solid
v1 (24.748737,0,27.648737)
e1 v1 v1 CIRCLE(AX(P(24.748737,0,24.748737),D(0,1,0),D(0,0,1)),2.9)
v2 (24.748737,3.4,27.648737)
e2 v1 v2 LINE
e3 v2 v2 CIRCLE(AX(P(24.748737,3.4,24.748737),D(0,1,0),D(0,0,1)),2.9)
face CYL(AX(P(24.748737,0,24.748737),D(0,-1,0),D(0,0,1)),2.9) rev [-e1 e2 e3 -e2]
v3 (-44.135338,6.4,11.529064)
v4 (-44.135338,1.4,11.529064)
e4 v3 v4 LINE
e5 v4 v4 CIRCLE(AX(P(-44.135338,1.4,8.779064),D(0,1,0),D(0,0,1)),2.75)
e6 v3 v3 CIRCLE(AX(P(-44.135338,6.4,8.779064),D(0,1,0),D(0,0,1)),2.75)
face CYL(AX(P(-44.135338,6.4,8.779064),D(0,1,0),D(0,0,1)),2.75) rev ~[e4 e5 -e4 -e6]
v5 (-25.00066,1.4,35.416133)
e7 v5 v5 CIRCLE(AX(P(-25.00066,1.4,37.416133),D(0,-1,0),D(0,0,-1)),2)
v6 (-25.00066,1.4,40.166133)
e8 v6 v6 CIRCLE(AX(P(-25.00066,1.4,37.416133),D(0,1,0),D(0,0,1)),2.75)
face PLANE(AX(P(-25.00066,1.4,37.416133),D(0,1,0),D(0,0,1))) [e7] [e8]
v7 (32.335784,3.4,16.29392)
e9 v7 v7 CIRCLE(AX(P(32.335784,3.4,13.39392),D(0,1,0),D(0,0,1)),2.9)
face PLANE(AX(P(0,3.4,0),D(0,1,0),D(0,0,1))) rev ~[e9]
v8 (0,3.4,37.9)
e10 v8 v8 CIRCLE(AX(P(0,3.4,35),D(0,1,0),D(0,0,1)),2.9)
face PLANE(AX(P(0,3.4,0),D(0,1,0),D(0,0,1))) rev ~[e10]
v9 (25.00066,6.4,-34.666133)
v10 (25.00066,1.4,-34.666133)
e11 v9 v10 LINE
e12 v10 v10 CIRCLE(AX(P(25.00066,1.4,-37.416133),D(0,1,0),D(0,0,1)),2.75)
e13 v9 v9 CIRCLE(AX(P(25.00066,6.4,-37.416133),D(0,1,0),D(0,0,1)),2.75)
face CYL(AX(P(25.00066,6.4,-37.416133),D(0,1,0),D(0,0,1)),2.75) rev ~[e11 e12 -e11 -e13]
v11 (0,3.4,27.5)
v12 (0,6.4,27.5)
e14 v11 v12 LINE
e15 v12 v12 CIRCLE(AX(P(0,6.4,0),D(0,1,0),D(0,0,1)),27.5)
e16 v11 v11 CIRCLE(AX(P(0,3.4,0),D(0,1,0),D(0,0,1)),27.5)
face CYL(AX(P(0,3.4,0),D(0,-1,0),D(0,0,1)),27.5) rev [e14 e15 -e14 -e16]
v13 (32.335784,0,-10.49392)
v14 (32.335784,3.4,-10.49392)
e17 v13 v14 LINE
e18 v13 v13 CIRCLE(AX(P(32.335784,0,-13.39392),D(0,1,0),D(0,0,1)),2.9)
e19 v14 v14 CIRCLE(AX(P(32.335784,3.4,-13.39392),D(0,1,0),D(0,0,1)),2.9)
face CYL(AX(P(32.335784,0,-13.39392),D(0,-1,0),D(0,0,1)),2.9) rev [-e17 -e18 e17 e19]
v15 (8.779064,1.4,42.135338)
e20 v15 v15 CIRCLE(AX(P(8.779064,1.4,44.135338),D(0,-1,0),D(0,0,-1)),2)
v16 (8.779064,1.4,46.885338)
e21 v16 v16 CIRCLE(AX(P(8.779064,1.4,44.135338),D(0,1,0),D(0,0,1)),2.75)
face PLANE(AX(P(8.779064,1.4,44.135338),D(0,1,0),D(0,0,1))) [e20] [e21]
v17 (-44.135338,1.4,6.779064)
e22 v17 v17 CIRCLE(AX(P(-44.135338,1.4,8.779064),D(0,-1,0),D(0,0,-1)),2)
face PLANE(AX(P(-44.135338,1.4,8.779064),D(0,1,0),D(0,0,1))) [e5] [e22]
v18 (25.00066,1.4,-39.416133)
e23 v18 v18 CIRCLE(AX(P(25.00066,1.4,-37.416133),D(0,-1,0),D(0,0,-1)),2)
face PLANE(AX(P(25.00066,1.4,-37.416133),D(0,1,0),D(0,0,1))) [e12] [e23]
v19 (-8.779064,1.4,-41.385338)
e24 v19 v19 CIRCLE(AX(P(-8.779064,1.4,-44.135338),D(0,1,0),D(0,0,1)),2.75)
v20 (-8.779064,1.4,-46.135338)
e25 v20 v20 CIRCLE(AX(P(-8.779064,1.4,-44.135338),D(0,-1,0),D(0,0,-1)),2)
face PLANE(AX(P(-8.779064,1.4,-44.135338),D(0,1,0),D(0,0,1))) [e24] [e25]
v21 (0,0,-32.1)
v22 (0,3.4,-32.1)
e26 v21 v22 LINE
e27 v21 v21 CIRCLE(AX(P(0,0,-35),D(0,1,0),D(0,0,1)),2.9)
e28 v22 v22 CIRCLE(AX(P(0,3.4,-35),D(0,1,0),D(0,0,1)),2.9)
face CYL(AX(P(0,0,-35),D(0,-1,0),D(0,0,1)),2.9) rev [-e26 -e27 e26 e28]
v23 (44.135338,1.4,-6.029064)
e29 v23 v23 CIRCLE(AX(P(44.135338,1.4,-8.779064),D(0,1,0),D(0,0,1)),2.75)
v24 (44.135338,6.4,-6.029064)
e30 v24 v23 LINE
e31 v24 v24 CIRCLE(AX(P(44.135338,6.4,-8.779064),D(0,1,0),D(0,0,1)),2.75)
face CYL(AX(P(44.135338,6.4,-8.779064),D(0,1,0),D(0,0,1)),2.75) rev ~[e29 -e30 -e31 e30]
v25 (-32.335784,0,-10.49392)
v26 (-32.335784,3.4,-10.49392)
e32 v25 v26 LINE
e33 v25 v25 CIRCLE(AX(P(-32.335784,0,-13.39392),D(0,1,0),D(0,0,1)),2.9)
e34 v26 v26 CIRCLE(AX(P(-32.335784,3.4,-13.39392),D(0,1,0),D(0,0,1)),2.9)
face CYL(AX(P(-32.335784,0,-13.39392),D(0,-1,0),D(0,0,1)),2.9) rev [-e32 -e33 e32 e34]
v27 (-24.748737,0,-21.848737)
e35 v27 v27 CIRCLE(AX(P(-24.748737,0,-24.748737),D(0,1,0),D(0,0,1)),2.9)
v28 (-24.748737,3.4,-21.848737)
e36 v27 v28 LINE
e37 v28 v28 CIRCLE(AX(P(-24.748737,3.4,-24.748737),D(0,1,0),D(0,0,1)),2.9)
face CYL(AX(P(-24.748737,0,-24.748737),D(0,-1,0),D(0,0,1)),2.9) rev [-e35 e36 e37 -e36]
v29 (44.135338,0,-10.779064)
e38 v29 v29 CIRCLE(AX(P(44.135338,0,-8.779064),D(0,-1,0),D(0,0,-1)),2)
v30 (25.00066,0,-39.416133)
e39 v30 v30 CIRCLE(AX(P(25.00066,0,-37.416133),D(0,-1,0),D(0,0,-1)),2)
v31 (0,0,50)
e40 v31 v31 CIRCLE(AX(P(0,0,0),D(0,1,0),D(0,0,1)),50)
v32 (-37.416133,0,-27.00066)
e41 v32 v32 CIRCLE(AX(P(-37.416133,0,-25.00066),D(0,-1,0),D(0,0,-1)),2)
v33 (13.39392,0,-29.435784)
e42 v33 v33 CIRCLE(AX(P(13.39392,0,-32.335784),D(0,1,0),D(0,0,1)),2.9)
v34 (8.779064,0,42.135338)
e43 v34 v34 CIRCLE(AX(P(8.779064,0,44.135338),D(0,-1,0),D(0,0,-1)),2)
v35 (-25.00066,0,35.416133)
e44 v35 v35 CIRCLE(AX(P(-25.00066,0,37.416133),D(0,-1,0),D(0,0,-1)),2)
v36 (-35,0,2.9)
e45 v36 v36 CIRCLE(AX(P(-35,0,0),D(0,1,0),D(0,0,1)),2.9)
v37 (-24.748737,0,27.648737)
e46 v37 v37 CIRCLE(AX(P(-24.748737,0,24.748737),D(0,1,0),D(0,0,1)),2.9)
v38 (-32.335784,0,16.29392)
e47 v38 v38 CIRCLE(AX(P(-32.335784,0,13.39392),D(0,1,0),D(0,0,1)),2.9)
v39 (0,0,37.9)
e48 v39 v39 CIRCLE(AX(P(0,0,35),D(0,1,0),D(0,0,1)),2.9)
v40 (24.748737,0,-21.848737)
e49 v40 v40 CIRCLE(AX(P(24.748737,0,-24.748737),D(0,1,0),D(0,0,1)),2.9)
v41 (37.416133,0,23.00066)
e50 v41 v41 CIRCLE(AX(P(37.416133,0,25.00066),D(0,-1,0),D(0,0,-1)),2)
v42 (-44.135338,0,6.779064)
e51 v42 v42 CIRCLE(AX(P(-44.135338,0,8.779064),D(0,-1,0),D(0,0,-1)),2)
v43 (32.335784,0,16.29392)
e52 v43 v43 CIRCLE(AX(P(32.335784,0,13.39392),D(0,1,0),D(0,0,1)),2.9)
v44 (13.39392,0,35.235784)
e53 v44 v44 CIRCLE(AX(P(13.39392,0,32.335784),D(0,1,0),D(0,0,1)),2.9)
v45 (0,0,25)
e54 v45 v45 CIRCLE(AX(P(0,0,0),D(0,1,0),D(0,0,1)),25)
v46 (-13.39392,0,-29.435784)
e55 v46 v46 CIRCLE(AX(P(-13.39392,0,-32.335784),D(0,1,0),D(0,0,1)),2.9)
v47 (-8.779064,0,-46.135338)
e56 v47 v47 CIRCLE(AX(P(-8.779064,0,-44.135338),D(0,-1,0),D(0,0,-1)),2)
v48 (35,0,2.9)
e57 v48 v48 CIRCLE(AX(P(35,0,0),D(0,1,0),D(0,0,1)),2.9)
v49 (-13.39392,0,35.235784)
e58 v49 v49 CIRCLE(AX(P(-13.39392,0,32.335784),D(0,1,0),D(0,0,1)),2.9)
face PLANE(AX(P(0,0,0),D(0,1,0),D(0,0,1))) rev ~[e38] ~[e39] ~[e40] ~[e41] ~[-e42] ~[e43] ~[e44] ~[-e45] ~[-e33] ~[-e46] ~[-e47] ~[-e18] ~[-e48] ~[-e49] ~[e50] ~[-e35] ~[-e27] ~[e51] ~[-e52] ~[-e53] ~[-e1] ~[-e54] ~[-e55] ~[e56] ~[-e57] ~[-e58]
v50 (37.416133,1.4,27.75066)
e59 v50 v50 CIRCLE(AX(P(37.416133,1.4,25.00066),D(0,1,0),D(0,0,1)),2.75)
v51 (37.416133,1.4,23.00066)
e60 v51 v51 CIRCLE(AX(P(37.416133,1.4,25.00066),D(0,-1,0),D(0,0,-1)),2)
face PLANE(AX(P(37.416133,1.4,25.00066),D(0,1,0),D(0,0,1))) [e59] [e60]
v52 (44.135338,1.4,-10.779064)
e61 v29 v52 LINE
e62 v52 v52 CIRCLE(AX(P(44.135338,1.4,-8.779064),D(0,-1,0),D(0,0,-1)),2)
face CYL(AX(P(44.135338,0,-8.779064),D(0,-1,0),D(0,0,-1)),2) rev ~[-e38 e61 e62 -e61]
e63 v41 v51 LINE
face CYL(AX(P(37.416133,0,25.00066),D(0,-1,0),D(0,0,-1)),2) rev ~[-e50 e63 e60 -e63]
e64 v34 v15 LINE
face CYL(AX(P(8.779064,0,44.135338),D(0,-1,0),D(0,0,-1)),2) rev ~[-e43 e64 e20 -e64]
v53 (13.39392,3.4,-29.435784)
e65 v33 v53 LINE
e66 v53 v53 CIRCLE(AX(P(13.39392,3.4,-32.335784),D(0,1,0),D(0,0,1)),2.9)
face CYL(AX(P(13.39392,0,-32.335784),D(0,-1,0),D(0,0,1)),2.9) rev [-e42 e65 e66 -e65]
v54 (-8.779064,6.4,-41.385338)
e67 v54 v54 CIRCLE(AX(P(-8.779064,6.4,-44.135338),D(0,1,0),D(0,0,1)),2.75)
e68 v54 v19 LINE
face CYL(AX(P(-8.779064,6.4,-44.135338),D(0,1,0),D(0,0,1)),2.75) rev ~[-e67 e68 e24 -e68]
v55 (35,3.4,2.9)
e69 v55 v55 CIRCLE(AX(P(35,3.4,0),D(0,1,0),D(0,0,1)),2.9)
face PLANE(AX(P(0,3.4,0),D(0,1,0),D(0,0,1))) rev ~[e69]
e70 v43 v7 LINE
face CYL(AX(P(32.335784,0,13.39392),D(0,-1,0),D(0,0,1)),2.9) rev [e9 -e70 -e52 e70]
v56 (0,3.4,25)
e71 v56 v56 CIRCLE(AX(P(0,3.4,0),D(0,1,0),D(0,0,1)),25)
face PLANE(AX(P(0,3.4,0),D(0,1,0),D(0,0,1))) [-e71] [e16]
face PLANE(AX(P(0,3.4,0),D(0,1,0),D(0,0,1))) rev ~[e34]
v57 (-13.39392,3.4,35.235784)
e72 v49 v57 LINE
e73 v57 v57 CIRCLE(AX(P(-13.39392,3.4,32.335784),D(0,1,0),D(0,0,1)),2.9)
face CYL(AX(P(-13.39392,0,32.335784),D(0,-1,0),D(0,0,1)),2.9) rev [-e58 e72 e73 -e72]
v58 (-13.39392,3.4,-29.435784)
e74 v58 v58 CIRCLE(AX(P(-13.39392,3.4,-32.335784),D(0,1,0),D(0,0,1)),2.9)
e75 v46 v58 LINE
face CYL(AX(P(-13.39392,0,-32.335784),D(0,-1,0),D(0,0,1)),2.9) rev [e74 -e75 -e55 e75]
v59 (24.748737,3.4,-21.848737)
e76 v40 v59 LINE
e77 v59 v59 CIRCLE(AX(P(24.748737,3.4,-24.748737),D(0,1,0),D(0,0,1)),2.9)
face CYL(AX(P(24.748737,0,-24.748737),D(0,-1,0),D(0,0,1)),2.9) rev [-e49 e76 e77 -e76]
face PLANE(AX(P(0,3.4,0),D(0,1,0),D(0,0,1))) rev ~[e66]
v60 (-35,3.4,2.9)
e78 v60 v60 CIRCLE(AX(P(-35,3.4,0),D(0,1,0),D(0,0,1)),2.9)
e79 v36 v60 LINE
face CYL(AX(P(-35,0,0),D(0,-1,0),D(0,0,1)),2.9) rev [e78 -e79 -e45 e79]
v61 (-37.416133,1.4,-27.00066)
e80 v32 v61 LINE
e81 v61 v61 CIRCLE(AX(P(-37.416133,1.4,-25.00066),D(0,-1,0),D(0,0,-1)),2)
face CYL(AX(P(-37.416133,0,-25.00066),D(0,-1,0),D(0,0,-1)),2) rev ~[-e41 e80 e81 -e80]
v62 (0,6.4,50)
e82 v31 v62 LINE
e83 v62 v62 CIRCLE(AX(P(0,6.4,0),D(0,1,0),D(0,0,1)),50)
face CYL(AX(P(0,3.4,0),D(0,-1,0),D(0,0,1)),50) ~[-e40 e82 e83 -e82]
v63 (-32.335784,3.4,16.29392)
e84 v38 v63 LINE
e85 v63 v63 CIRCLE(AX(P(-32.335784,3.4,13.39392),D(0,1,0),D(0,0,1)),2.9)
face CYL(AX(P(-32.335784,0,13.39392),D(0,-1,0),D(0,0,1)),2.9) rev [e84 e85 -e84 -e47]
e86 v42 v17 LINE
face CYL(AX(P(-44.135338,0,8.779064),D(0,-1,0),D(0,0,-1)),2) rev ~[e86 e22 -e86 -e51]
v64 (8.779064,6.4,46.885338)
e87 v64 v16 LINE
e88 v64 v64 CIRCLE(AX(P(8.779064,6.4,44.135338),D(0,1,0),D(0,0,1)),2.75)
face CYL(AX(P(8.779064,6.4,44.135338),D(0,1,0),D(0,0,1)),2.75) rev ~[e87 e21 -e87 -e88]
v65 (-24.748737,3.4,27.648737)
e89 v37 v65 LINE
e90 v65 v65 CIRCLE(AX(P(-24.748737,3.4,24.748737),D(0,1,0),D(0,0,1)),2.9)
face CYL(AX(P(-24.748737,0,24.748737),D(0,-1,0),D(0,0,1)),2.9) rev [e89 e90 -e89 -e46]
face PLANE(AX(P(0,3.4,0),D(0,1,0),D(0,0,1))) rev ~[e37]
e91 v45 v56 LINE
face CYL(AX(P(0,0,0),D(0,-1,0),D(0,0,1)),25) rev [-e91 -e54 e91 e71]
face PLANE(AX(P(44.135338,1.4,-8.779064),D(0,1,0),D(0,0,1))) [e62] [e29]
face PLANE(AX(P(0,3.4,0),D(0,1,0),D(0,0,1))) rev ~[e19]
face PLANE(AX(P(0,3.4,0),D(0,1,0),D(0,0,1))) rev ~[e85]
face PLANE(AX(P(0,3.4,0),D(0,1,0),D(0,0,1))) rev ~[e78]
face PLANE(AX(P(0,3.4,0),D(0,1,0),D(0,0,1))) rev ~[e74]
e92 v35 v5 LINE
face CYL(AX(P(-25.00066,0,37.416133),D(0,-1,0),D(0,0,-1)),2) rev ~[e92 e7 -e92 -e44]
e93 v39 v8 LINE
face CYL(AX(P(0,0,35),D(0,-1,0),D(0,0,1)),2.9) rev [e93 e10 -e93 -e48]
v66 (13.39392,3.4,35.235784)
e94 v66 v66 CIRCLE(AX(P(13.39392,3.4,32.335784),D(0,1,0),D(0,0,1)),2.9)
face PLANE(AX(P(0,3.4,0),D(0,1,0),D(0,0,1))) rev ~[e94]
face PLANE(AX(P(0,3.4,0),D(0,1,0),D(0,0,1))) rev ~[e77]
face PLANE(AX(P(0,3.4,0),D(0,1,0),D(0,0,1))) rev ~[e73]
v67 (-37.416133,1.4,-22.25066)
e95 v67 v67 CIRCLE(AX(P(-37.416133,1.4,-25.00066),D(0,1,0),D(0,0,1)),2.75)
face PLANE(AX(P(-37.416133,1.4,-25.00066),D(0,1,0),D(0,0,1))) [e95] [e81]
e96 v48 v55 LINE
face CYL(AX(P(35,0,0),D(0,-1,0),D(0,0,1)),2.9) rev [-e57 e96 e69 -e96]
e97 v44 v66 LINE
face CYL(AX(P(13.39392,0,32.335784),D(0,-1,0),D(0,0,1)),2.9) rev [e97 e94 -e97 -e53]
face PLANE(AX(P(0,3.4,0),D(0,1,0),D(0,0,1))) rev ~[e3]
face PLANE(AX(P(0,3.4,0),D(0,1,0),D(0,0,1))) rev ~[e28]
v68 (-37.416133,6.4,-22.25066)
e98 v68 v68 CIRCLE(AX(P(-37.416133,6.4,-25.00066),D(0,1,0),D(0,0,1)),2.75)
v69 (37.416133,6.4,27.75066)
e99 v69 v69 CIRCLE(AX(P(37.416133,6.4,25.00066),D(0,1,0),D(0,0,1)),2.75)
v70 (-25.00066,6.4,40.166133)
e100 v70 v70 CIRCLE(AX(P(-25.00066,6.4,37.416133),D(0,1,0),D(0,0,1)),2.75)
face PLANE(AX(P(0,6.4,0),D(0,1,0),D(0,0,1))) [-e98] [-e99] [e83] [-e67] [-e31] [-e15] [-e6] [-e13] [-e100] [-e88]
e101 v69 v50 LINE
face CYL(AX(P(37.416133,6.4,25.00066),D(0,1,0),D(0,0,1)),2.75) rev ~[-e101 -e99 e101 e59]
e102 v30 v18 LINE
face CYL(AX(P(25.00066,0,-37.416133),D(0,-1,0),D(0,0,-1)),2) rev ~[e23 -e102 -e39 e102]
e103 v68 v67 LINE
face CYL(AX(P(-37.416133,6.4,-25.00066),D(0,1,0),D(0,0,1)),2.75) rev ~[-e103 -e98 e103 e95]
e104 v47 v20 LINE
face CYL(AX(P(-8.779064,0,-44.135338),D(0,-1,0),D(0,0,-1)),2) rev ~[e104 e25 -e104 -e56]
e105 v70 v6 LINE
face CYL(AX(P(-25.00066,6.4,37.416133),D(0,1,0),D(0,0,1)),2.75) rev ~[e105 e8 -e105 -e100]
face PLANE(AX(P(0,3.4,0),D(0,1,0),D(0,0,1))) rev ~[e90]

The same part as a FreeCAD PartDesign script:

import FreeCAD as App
import Part
import Sketcher

V = App.Vector
Q = App.Units.Quantity

doc = App.newDocument("Part")
params = doc.addObject("Spreadsheet::Sheet", "Params")
for row, (alias, value) in enumerate([
    ("sketch1_diameter", "100 mm"),
    ("sketch1_diameter2", "50 mm"),
    ("sketch1_diameter3", "5.8 mm"),
    ("pad1_length", "3.4 mm"),
    ("sketch2_diameter", "100 mm"),
    ("sketch2_diameter2", "55 mm"),
    ("pad2_length", "3 mm"),
    ("sketch3_diameter", "4 mm"),
    ("pocket1_length", "6.4 mm"),
    ("sketch4_diameter", "5.5 mm"),
    ("pocket2_length", "5 mm"),
], start=1):
    params.set(f"A{row}", alias)
    params.set(f"B{row}", "=" + value)
    params.setAlias(f"B{row}", alias)

body = doc.addObject("PartDesign::Body", "Body")

# Sketch on XZ plane
sketch1 = body.newObject("Sketcher::SketchObject", "Sketch")
sketch1.AttachmentSupport = (doc.getObject("XZ_Plane"), [""])
sketch1.MapMode = "FlatFace"
sketch1.addGeometry([
    Part.Circle(V(0, 0, 0), V(0, 0, 1), 50),  # 0
    Part.Circle(V(-24.7, -24.7, 0), V(0, 0, 1), 2.9),  # 1
    Part.Circle(V(-32.3, -13.4, 0), V(0, 0, 1), 2.9),  # 2
    Part.Circle(V(-13.4, -32.3, 0), V(0, 0, 1), 2.9),  # 3
    Part.Circle(V(0, -35, 0), V(0, 0, 1), 2.9),  # 4
    Part.Circle(V(-35, 0, 0), V(0, 0, 1), 2.9),  # 5
    Part.Circle(V(-32.3, 13.4, 0), V(0, 0, 1), 2.9),  # 6
    Part.Circle(V(-24.7, 24.7, 0), V(0, 0, 1), 2.9),  # 7
    Part.Circle(V(0, 0, 0), V(0, 0, 1), 25),  # 8
    Part.Circle(V(-13.4, 32.3, 0), V(0, 0, 1), 2.9),  # 9
    Part.Circle(V(13.4, -32.3, 0), V(0, 0, 1), 2.9),  # 10
    Part.Circle(V(24.7, -24.7, 0), V(0, 0, 1), 2.9),  # 11
    Part.Circle(V(32.3, -13.4, 0), V(0, 0, 1), 2.9),  # 12
    Part.Circle(V(35, 0, 0), V(0, 0, 1), 2.9),  # 13
    Part.Circle(V(0, 35, 0), V(0, 0, 1), 2.9),  # 14
    Part.Circle(V(13.4, 32.3, 0), V(0, 0, 1), 2.9),  # 15
    Part.Circle(V(32.3, 13.4, 0), V(0, 0, 1), 2.9),  # 16
    Part.Circle(V(24.7, 24.7, 0), V(0, 0, 1), 2.9),  # 17
], False)
sketch1.addConstraint([
    Sketcher.Constraint("Coincident", 0, 3, -1, 1),
    Sketcher.Constraint("Coincident", 8, 3, -1, 1),
    Sketcher.Constraint("Equal", 1, 2),
    Sketcher.Constraint("Equal", 2, 3),
    Sketcher.Constraint("Equal", 3, 4),
    Sketcher.Constraint("Equal", 4, 5),
    Sketcher.Constraint("Equal", 5, 6),
    Sketcher.Constraint("Equal", 6, 7),
    Sketcher.Constraint("Equal", 7, 9),
    Sketcher.Constraint("Equal", 9, 10),
    Sketcher.Constraint("Equal", 10, 11),
    Sketcher.Constraint("Equal", 11, 12),
    Sketcher.Constraint("Equal", 12, 13),
    Sketcher.Constraint("Equal", 13, 14),
    Sketcher.Constraint("Equal", 14, 15),
    Sketcher.Constraint("Equal", 15, 16),
    Sketcher.Constraint("Equal", 16, 17),
    Sketcher.Constraint("Symmetric", 9, 3, 10, 3, -1, 1),
    Sketcher.Constraint("Symmetric", 7, 3, 11, 3, -1, 1),
    Sketcher.Constraint("Symmetric", 6, 3, 12, 3, -1, 1),
    Sketcher.Constraint("Symmetric", 5, 3, 13, 3, -1, 1),
    Sketcher.Constraint("Symmetric", 4, 3, 14, 3, -1, 1),
    Sketcher.Constraint("Symmetric", 3, 3, 15, 3, -1, 1),
    Sketcher.Constraint("Symmetric", 2, 3, 16, 3, -1, 1),
    Sketcher.Constraint("Symmetric", 1, 3, 17, 3, -1, 1),
    Sketcher.Constraint("Symmetric", 3, 3, 10, 3, -2),
    Sketcher.Constraint("Symmetric", 1, 3, 11, 3, -2),
    Sketcher.Constraint("Symmetric", 2, 3, 12, 3, -2),
    Sketcher.Constraint("PointOnObject", 4, 3, -2),
    Sketcher.Constraint("PointOnObject", 5, 3, -1),
    Sketcher.Constraint("Diameter", 0, Q("100 mm")),
    Sketcher.Constraint("Diameter", 8, Q("50 mm")),
    Sketcher.Constraint("Diameter", 1, Q("5.8 mm")),
    Sketcher.Constraint("DistanceY", 4, 3, -1, 1, Q("35 mm")),
    Sketcher.Constraint("DistanceX", 5, 3, -1, 1, Q("35 mm")),
    Sketcher.Constraint("DistanceY", 2, 3, -1, 1, Q("13.39392 mm")),
    Sketcher.Constraint("DistanceX", 3, 3, -1, 1, Q("13.39392 mm")),
    Sketcher.Constraint("DistanceX", 1, 3, -1, 1, Q("24.748737 mm")),
    Sketcher.Constraint("DistanceY", 1, 3, -1, 1, Q("24.748737 mm")),
    Sketcher.Constraint("DistanceX", 2, 3, -1, 1, Q("32.335784 mm")),
    Sketcher.Constraint("DistanceY", 3, 3, -1, 1, Q("32.335784 mm")),
])
sketch1.setExpression("Constraints[30]", "Params.sketch1_diameter")
sketch1.setExpression("Constraints[31]", "Params.sketch1_diameter2")
sketch1.setExpression("Constraints[32]", "Params.sketch1_diameter3")
pad1 = body.newObject("PartDesign::Pad", "Pad")
pad1.Profile = sketch1
pad1.setExpression("Length", "Params.pad1_length")
pad1.Reversed = True

# Sketch on XZ plane
sketch2 = body.newObject("Sketcher::SketchObject", "Sketch001")
sketch2.AttachmentSupport = (doc.getObject("XZ_Plane"), [""])
sketch2.MapMode = "FlatFace"
sketch2.AttachmentOffset = App.Placement(V(0, 0, -3.4), App.Rotation())
sketch2.addGeometry([
    Part.Circle(V(0, 0, 0), V(0, 0, 1), 50),
    Part.Circle(V(0, 0, 0), V(0, 0, 1), 28),
], False)
sketch2.addConstraint([
    Sketcher.Constraint("Coincident", 0, 3, -1, 1),
    Sketcher.Constraint("Coincident", 1, 3, -1, 1),
    Sketcher.Constraint("Diameter", 0, Q("100 mm")),
    Sketcher.Constraint("Diameter", 1, Q("55 mm")),
])
sketch2.setExpression("Constraints[2]", "Params.sketch2_diameter")
sketch2.setExpression("Constraints[3]", "Params.sketch2_diameter2")
pad2 = body.newObject("PartDesign::Pad", "Pad001")
pad2.Profile = sketch2
pad2.setExpression("Length", "Params.pad2_length")
pad2.Reversed = True

# Sketch on XZ plane
sketch3 = body.newObject("Sketcher::SketchObject", "Sketch002")
sketch3.AttachmentSupport = (doc.getObject("XZ_Plane"), [""])
sketch3.MapMode = "FlatFace"
sketch3.addGeometry([
    Part.Circle(V(-37.4, -25, 0), V(0, 0, 1), 2),  # 0
    Part.Circle(V(37.4, 25, 0), V(0, 0, 1), 2),  # 1
    Part.Circle(V(44.1, -8.8, 0), V(0, 0, 1), 2),  # 2
    Part.Circle(V(25, -37.4, 0), V(0, 0, 1), 2),  # 3
    Part.Circle(V(-8.8, -44.1, 0), V(0, 0, 1), 2),  # 4
    Part.Circle(V(-44.1, 8.8, 0), V(0, 0, 1), 2),  # 5
    Part.Circle(V(-25, 37.4, 0), V(0, 0, 1), 2),  # 6
    Part.Circle(V(8.8, 44.1, 0), V(0, 0, 1), 2),  # 7
], False)
sketch3.addConstraint([
    Sketcher.Constraint("Equal", 0, 1),
    Sketcher.Constraint("Equal", 1, 2),
    Sketcher.Constraint("Equal", 2, 3),
    Sketcher.Constraint("Equal", 3, 4),
    Sketcher.Constraint("Equal", 4, 5),
    Sketcher.Constraint("Equal", 5, 6),
    Sketcher.Constraint("Equal", 6, 7),
    Sketcher.Constraint("Symmetric", 0, 3, 1, 3, -1, 1),
    Sketcher.Constraint("Symmetric", 2, 3, 5, 3, -1, 1),
    Sketcher.Constraint("Symmetric", 3, 3, 6, 3, -1, 1),
    Sketcher.Constraint("Symmetric", 4, 3, 7, 3, -1, 1),
    Sketcher.Constraint("Diameter", 0, Q("4 mm")),
    Sketcher.Constraint("DistanceY", 4, 3, 1, 3, Q("69.135998 mm")),
    Sketcher.Constraint("DistanceX", 5, 3, 3, 3, Q("69.135998 mm")),
    Sketcher.Constraint("DistanceY", 0, 3, -1, 1, Q("25.00066 mm")),
    Sketcher.Constraint("DistanceX", -1, 1, 3, 3, Q("25.00066 mm")),
    Sketcher.Constraint("DistanceX", 0, 3, 2, 3, Q("81.55147 mm")),
    Sketcher.Constraint("DistanceY", 3, 3, 2, 3, Q("28.637068 mm")),
    Sketcher.Constraint("DistanceX", 0, 3, 4, 3, Q("28.637068 mm")),
    Sketcher.Constraint("DistanceY", 2, 3, 5, 3, Q("17.558129 mm")),
])
sketch3.setExpression("Constraints[11]", "Params.sketch3_diameter")
pocket1 = body.newObject("PartDesign::Pocket", "Pocket")
pocket1.Profile = sketch3
pocket1.setExpression("Length", "Params.pocket1_length")

# Sketch on XZ plane
sketch4 = body.newObject("Sketcher::SketchObject", "Sketch003")
sketch4.AttachmentSupport = (doc.getObject("XZ_Plane"), [""])
sketch4.MapMode = "FlatFace"
sketch4.AttachmentOffset = App.Placement(V(0, 0, -6.4), App.Rotation())
sketch4.addGeometry([
    Part.Circle(V(-8.8, -44.1, 0), V(0, 0, 1), 2.8),  # 0
    Part.Circle(V(25, -37.4, 0), V(0, 0, 1), 2.8),  # 1
    Part.Circle(V(44.1, -8.8, 0), V(0, 0, 1), 2.8),  # 2
    Part.Circle(V(37.4, 25, 0), V(0, 0, 1), 2.8),  # 3
    Part.Circle(V(8.8, 44.1, 0), V(0, 0, 1), 2.8),  # 4
    Part.Circle(V(-25, 37.4, 0), V(0, 0, 1), 2.8),  # 5
    Part.Circle(V(-44.1, 8.8, 0), V(0, 0, 1), 2.8),  # 6
    Part.Circle(V(-37.4, -25, 0), V(0, 0, 1), 2.8),  # 7
], False)
sketch4.addConstraint([
    Sketcher.Constraint("Equal", 0, 1),
    Sketcher.Constraint("Equal", 1, 2),
    Sketcher.Constraint("Equal", 2, 3),
    Sketcher.Constraint("Equal", 3, 4),
    Sketcher.Constraint("Equal", 4, 5),
    Sketcher.Constraint("Equal", 5, 6),
    Sketcher.Constraint("Equal", 6, 7),
    Sketcher.Constraint("Symmetric", 0, 3, 4, 3, -1, 1),
    Sketcher.Constraint("Symmetric", 1, 3, 5, 3, -1, 1),
    Sketcher.Constraint("Symmetric", 2, 3, 6, 3, -1, 1),
    Sketcher.Constraint("Symmetric", 3, 3, 7, 3, -1, 1),
    Sketcher.Constraint("Diameter", 0, Q("5.5 mm")),
    Sketcher.Constraint("DistanceY", 0, 3, 3, 3, Q("69.135998 mm")),
    Sketcher.Constraint("DistanceX", 5, 3, 2, 3, Q("69.135998 mm")),
    Sketcher.Constraint("DistanceX", -1, 1, 1, 3, Q("25.00066 mm")),
    Sketcher.Constraint("DistanceY", -1, 1, 3, 3, Q("25.00066 mm")),
    Sketcher.Constraint("DistanceY", 1, 3, 2, 3, Q("28.637068 mm")),
    Sketcher.Constraint("DistanceX", 4, 3, 3, 3, Q("28.637068 mm")),
    Sketcher.Constraint("DistanceY", 1, 3, 4, 3, Q("81.55147 mm")),
    Sketcher.Constraint("DistanceX", 0, 3, 4, 3, Q("17.558129 mm")),
])
sketch4.setExpression("Constraints[11]", "Params.sketch4_diameter")
pocket2 = body.newObject("PartDesign::Pocket", "Pocket001")
pocket2.Profile = sketch4
pocket2.setExpression("Length", "Params.pocket2_length")
pocket2.Reversed = True

doc.recompute()
